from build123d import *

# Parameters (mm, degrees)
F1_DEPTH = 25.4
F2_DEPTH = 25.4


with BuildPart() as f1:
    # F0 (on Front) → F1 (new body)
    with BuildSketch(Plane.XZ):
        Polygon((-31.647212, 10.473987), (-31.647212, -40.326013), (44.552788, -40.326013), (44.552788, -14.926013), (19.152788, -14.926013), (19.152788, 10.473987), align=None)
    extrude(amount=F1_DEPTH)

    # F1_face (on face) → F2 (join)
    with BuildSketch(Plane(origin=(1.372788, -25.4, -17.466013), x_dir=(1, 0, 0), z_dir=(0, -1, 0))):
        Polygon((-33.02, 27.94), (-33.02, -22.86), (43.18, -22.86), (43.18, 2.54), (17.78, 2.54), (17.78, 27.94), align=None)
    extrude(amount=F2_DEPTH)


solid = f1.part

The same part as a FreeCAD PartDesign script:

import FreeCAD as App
import Part
import Sketcher
from FreeCAD import Vector
Q = App.Units.Quantity


def add_polygon(sketch, points):
    """Adds a closed chain of lines whose ends are joined by coincident constraints."""
    first, n = sketch.GeometryCount, len(points)
    for a, b in zip(points, points[1:] + points[:1]):
        sketch.addGeometry(Part.LineSegment(App.Vector(*a, 0), App.Vector(*b, 0)), False)
    for i in range(n):
        sketch.addConstraint(Sketcher.Constraint("Coincident", first + i, 2, first + (i + 1) % n, 1))

doc = App.newDocument("Part")
body = doc.addObject("PartDesign::Body", "Body")

sketch1 = body.newObject("Sketcher::SketchObject", "Sketch")
sketch1.AttachmentSupport = (doc.getObject("XZ_Plane"), [""])
sketch1.MapMode = "FlatFace"
add_polygon(sketch1, [(-32, 10), (-32, -40), (45, -40), (45, -15), (19, -15), (19, 10)])
sketch1.addConstraint(Sketcher.Constraint("Vertical", 0))
sketch1.addConstraint(Sketcher.Constraint("Horizontal", 1))
sketch1.addConstraint(Sketcher.Constraint("Vertical", 2))
sketch1.addConstraint(Sketcher.Constraint("Horizontal", 3))
sketch1.addConstraint(Sketcher.Constraint("Vertical", 4))
sketch1.addConstraint(Sketcher.Constraint("Horizontal", 5))
sketch1.addConstraint(Sketcher.Constraint("Equal", 5, 0))
sketch1.addConstraint(Sketcher.Constraint("Equal", 3, 2))
sketch1.addConstraint(Sketcher.Constraint("Equal", 2, 4))
sketch1.addConstraint(Sketcher.Constraint("DistanceX", 1, 1, 1, 2, Q("3 in")))
sketch1.addConstraint(Sketcher.Constraint("DistanceX", 0, 2, -1, 1, 31.647212))
sketch1.addConstraint(Sketcher.Constraint("DistanceY", 0, 2, -1, 1, 40.326013))
pad1 = body.newObject("PartDesign::Pad", "Pad")
pad1.Profile = sketch1
pad1.Length = Q("1 in")

sketch2 = body.newObject("Sketcher::SketchObject", "Sketch001")
sketch2.AttachmentSupport = (doc.getObject("XZ_Plane"), [""])
sketch2.MapMode = "FlatFace"
sketch2.AttachmentOffset = App.Placement(Vector(0, 0, 1 * 25.4), App.Rotation())
add_polygon(sketch2, [(-32, 10), (-32, -40), (45, -40), (45, -15), (19, -15), (19, 10)])
sketch2.addConstraint(Sketcher.Constraint("Vertical", 0))
sketch2.addConstraint(Sketcher.Constraint("Horizontal", 1))
sketch2.addConstraint(Sketcher.Constraint("Vertical", 2))
sketch2.addConstraint(Sketcher.Constraint("Horizontal", 3))
sketch2.addConstraint(Sketcher.Constraint("Vertical", 4))
sketch2.addConstraint(Sketcher.Constraint("Horizontal", 5))
sketch2.addConstraint(Sketcher.Constraint("Equal", 5, 0))
sketch2.addConstraint(Sketcher.Constraint("Equal", 3, 2))
sketch2.addConstraint(Sketcher.Constraint("Equal", 2, 4))
sketch2.addConstraint(Sketcher.Constraint("DistanceX", 1, 1, 1, 2, Q("3 in")))
sketch2.addConstraint(Sketcher.Constraint("DistanceX", 0, 2, -1, 1, 31.647212))
sketch2.addConstraint(Sketcher.Constraint("DistanceY", 0, 2, -1, 1, 40.326013))
pad2 = body.newObject("PartDesign::Pad", "Pad001")
pad2.Profile = sketch2
pad2.Length = Q("1 in")

doc.recompute()
